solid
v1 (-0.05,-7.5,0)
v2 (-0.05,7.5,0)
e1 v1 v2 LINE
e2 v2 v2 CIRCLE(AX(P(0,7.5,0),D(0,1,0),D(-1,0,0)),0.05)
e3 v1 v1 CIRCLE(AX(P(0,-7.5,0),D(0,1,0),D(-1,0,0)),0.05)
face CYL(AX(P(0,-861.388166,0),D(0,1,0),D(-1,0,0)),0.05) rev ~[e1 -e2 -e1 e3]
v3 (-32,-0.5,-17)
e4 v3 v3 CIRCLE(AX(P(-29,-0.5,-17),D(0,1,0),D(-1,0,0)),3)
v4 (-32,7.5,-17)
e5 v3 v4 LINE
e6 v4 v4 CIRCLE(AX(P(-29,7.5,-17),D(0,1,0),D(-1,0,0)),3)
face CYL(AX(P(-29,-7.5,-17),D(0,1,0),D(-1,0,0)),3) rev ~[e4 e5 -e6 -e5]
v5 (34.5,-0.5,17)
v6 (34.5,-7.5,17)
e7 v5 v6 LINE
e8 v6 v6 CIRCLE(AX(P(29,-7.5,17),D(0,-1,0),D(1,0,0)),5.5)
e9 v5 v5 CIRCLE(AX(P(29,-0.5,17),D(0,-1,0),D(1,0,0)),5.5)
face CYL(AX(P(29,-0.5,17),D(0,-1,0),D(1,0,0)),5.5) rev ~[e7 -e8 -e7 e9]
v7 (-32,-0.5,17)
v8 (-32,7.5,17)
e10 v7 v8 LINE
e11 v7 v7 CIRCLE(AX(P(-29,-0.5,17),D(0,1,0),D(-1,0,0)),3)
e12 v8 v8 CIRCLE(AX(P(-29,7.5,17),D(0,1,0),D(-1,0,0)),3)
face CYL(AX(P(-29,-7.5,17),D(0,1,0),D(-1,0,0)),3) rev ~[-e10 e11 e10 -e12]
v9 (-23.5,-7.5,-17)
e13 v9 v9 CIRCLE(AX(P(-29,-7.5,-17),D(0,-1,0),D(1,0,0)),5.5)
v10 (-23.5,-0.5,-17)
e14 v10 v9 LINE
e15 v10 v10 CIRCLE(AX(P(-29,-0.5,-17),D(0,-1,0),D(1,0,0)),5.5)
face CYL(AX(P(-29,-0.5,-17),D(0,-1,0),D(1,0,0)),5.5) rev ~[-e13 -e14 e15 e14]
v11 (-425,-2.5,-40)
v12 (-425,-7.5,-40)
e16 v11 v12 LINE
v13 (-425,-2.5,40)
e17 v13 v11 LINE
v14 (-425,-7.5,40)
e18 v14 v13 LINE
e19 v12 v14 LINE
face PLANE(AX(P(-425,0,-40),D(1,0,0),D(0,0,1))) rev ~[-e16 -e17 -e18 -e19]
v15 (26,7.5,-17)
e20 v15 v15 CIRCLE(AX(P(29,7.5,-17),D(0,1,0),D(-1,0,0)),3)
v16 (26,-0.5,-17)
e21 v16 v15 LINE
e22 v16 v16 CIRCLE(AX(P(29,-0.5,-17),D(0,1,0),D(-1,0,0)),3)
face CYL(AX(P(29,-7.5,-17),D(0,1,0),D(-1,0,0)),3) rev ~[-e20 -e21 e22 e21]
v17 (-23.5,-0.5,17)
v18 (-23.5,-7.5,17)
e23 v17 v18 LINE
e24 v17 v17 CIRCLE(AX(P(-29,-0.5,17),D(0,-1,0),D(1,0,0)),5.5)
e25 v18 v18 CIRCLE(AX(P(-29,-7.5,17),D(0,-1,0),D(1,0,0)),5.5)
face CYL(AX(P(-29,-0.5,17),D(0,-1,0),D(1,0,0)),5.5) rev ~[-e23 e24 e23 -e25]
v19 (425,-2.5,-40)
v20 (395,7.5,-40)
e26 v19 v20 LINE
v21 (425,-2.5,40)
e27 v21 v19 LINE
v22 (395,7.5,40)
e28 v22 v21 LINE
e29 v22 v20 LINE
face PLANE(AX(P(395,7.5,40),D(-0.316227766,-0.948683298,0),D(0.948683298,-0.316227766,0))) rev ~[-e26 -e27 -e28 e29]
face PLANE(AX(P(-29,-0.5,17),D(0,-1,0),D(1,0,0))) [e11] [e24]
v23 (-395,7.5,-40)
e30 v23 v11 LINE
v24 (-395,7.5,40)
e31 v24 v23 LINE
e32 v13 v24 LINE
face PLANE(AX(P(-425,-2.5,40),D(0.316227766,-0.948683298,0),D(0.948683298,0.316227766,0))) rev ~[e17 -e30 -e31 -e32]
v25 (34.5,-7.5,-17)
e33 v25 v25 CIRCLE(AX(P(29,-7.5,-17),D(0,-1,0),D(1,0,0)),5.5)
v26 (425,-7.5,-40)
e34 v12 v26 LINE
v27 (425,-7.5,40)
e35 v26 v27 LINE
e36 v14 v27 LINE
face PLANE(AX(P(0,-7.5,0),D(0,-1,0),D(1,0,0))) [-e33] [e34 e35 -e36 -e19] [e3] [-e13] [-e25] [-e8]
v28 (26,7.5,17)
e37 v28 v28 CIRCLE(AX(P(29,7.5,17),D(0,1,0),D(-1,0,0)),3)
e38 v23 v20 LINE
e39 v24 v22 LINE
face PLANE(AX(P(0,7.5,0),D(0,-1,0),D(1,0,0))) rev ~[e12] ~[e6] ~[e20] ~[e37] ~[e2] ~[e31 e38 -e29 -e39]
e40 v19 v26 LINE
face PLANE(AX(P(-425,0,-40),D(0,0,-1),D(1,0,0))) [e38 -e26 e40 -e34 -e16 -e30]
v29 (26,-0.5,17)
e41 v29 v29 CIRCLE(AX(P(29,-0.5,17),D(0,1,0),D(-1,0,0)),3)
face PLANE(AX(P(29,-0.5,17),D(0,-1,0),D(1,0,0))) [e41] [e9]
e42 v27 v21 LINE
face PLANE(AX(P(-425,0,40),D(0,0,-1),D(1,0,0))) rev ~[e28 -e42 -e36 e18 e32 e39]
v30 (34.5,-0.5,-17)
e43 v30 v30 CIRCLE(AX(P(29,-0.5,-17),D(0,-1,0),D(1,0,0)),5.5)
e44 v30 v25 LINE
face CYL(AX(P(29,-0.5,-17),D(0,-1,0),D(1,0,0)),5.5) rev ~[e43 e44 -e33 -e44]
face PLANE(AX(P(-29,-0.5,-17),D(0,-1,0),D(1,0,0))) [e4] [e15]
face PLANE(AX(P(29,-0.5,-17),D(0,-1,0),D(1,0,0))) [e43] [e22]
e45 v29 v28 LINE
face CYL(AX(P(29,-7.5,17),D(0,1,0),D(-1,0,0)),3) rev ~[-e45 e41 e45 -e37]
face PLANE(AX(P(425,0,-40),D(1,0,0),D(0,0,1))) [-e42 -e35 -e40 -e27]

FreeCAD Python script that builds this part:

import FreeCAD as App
import Part
import Sketcher

doc = App.newDocument("Part")
body = doc.addObject("PartDesign::Body", "Body")

# Sketch on XZ plane
sketch1 = doc.addObject("Sketcher::SketchObject", "Sketch")
body.addObject(sketch1)
sketch1.AttachmentSupport = (doc.XZ_Plane, [""])
sketch1.MapMode = "FlatFace"
sketch1.addGeometry([
    Part.LineSegment(App.Vector(-425, 40, 0), App.Vector(-425, -40, 0)),
    Part.LineSegment(App.Vector(-425, -40, 0), App.Vector(425, -40, 0)),
    Part.LineSegment(App.Vector(425, -40, 0), App.Vector(425, 40, 0)),
    Part.LineSegment(App.Vector(425, 40, 0), App.Vector(-425, 40, 0)),
], False)
sketch1.addConstraint([
    Sketcher.Constraint("Coincident", 0, 2, 1, 1),
    Sketcher.Constraint("Coincident", 1, 2, 2, 1),
    Sketcher.Constraint("Coincident", 2, 2, 3, 1),
    Sketcher.Constraint("Coincident", 3, 2, 0, 1),
    Sketcher.Constraint("Vertical", 0),
    Sketcher.Constraint("Horizontal", 1),
    Sketcher.Constraint("Vertical", 2),
    Sketcher.Constraint("Horizontal", 3),
    Sketcher.Constraint("Symmetric", 0, 2, 2, 2, -1, 1),
    Sketcher.Constraint("DistanceX", 1, 1, 1, 2, 850.0),
    Sketcher.Constraint("DistanceY", 0, 2, 0, 1, 80.0),
])
pad1 = doc.addObject("PartDesign::Pad", "Pad")
body.addObject(pad1)
pad1.Profile = sketch1
pad1.Length = 15
pad1.Midplane = True

# Sketch on XZ plane
sketch2 = doc.addObject("Sketcher::SketchObject", "Sketch001")
body.addObject(sketch2)
sketch2.AttachmentSupport = (doc.XZ_Plane, [""])
sketch2.MapMode = "FlatFace"
sketch2.AttachmentOffset = App.Placement(App.Vector(0, 0, 7.5), App.Rotation())
sketch2.addGeometry([
    Part.Circle(App.Vector(-29, 17, 0), App.Vector(0, 0, 1), 3),
    Part.Circle(App.Vector(29, 17, 0), App.Vector(0, 0, 1), 3),
    Part.Circle(App.Vector(29, -17, 0), App.Vector(0, 0, 1), 3),
    Part.Circle(App.Vector(-29, -17, 0), App.Vector(0, 0, 1), 3),
], False)
sketch2.addConstraint([
    Sketcher.Constraint("Equal", 0, 1),
    Sketcher.Constraint("Equal", 1, 2),
    Sketcher.Constraint("Equal", 2, 3),
    Sketcher.Constraint("Symmetric", 0, 3, 2, 3, -1, 1),
    Sketcher.Constraint("Symmetric", 1, 3, 3, 3, -1, 1),
    Sketcher.Constraint("Symmetric", 0, 3, 1, 3, -2),
    Sketcher.Constraint("Diameter", 0, 6.0),
    Sketcher.Constraint("DistanceX", 0, 3, -1, 1, 29.0),
    Sketcher.Constraint("DistanceY", -1, 1, 0, 3, 17.0),
])
doc.recompute()
hole = doc.addObject("PartDesign::Hole", "Hole")
body.addObject(hole)
hole.Profile = sketch2
hole.ThreadType = "None"
hole.Diameter = 6
hole.DepthType = "ThroughAll"
hole.HoleCutType = "Counterbore"
hole.HoleCutDiameter = 11
hole.HoleCutDepth = 7

# Sketch on XZ plane
sketch3 = doc.addObject("Sketcher::SketchObject", "Sketch002")
body.addObject(sketch3)
sketch3.AttachmentSupport = (doc.XZ_Plane, [""])
sketch3.MapMode = "FlatFace"
sketch3.AttachmentOffset = App.Placement(App.Vector(0, 0, 7.5), App.Rotation())
sketch3.addGeometry(Part.Circle(App.Vector(0, 0, 0), App.Vector(0, 0, 1), 0.05), False)
sketch3.addConstraint([
    Sketcher.Constraint("Coincident", 0, 3, -1, 1),
    Sketcher.Constraint("Diameter", 0, 0.1),
])
doc.recompute()
hole2 = doc.addObject("PartDesign::Hole", "Hole001")
body.addObject(hole2)
hole2.Profile = sketch3
hole2.ThreadType = "None"
hole2.Diameter = 0.1
hole2.DepthType = "ThroughAll"

# Sketch on XY plane
sketch4 = doc.addObject("Sketcher::SketchObject", "Sketch003")
body.addObject(sketch4)
sketch4.AttachmentSupport = (doc.XY_Plane, [""])
sketch4.MapMode = "FlatFace"
sketch4.AttachmentOffset = App.Placement(App.Vector(0, 0, 40), App.Rotation())
sketch4.addGeometry([
    Part.LineSegment(App.Vector(-395, 8, 0), App.Vector(-425, 8, 0)),  # 0
    Part.LineSegment(App.Vector(-425, 8, 0), App.Vector(-425, -2, 0)),  # 1
    Part.LineSegment(App.Vector(-425, -2, 0), App.Vector(-395, 8, 0)),  # 2
    Part.LineSegment(App.Vector(425, 8, 0), App.Vector(395, 8, 0)),  # 3
    Part.LineSegment(App.Vector(395, 8, 0), App.Vector(425, -2, 0)),  # 4
    Part.LineSegment(App.Vector(425, -2, 0), App.Vector(425, 8, 0)),  # 5
], False)
sketch4.addConstraint([
    Sketcher.Constraint("Coincident", 0, 2, 1, 1),
    Sketcher.Constraint("Coincident", 1, 2, 2, 1),
    Sketcher.Constraint("Coincident", 2, 2, 0, 1),
    Sketcher.Constraint("Coincident", 3, 2, 4, 1),
    Sketcher.Constraint("Coincident", 4, 2, 5, 1),
    Sketcher.Constraint("Coincident", 5, 2, 3, 1),
    Sketcher.Constraint("Horizontal", 0),
    Sketcher.Constraint("Vertical", 1),
    Sketcher.Constraint("Horizontal", 3),
    Sketcher.Constraint("Vertical", 5),
    Sketcher.Constraint("Symmetric", 2, 2, 3, 2, -2),
    Sketcher.Constraint("Symmetric", 1, 2, 4, 2, -2),
    Sketcher.Constraint("DistanceX", 0, 2, 0, 1, 30.0),
    Sketcher.Constraint("DistanceY", 1, 2, 1, 1, 10.0),
    Sketcher.Constraint("DistanceX", 0, 2, -1, 1, 425.0),
    Sketcher.Constraint("DistanceY", -1, 1, 0, 2, 7.5),
])
pocket1 = doc.addObject("PartDesign::Pocket", "Pocket")
body.addObject(pocket1)
pocket1.Profile = sketch4
pocket1.Type = "ThroughAll"

doc.recompute()
